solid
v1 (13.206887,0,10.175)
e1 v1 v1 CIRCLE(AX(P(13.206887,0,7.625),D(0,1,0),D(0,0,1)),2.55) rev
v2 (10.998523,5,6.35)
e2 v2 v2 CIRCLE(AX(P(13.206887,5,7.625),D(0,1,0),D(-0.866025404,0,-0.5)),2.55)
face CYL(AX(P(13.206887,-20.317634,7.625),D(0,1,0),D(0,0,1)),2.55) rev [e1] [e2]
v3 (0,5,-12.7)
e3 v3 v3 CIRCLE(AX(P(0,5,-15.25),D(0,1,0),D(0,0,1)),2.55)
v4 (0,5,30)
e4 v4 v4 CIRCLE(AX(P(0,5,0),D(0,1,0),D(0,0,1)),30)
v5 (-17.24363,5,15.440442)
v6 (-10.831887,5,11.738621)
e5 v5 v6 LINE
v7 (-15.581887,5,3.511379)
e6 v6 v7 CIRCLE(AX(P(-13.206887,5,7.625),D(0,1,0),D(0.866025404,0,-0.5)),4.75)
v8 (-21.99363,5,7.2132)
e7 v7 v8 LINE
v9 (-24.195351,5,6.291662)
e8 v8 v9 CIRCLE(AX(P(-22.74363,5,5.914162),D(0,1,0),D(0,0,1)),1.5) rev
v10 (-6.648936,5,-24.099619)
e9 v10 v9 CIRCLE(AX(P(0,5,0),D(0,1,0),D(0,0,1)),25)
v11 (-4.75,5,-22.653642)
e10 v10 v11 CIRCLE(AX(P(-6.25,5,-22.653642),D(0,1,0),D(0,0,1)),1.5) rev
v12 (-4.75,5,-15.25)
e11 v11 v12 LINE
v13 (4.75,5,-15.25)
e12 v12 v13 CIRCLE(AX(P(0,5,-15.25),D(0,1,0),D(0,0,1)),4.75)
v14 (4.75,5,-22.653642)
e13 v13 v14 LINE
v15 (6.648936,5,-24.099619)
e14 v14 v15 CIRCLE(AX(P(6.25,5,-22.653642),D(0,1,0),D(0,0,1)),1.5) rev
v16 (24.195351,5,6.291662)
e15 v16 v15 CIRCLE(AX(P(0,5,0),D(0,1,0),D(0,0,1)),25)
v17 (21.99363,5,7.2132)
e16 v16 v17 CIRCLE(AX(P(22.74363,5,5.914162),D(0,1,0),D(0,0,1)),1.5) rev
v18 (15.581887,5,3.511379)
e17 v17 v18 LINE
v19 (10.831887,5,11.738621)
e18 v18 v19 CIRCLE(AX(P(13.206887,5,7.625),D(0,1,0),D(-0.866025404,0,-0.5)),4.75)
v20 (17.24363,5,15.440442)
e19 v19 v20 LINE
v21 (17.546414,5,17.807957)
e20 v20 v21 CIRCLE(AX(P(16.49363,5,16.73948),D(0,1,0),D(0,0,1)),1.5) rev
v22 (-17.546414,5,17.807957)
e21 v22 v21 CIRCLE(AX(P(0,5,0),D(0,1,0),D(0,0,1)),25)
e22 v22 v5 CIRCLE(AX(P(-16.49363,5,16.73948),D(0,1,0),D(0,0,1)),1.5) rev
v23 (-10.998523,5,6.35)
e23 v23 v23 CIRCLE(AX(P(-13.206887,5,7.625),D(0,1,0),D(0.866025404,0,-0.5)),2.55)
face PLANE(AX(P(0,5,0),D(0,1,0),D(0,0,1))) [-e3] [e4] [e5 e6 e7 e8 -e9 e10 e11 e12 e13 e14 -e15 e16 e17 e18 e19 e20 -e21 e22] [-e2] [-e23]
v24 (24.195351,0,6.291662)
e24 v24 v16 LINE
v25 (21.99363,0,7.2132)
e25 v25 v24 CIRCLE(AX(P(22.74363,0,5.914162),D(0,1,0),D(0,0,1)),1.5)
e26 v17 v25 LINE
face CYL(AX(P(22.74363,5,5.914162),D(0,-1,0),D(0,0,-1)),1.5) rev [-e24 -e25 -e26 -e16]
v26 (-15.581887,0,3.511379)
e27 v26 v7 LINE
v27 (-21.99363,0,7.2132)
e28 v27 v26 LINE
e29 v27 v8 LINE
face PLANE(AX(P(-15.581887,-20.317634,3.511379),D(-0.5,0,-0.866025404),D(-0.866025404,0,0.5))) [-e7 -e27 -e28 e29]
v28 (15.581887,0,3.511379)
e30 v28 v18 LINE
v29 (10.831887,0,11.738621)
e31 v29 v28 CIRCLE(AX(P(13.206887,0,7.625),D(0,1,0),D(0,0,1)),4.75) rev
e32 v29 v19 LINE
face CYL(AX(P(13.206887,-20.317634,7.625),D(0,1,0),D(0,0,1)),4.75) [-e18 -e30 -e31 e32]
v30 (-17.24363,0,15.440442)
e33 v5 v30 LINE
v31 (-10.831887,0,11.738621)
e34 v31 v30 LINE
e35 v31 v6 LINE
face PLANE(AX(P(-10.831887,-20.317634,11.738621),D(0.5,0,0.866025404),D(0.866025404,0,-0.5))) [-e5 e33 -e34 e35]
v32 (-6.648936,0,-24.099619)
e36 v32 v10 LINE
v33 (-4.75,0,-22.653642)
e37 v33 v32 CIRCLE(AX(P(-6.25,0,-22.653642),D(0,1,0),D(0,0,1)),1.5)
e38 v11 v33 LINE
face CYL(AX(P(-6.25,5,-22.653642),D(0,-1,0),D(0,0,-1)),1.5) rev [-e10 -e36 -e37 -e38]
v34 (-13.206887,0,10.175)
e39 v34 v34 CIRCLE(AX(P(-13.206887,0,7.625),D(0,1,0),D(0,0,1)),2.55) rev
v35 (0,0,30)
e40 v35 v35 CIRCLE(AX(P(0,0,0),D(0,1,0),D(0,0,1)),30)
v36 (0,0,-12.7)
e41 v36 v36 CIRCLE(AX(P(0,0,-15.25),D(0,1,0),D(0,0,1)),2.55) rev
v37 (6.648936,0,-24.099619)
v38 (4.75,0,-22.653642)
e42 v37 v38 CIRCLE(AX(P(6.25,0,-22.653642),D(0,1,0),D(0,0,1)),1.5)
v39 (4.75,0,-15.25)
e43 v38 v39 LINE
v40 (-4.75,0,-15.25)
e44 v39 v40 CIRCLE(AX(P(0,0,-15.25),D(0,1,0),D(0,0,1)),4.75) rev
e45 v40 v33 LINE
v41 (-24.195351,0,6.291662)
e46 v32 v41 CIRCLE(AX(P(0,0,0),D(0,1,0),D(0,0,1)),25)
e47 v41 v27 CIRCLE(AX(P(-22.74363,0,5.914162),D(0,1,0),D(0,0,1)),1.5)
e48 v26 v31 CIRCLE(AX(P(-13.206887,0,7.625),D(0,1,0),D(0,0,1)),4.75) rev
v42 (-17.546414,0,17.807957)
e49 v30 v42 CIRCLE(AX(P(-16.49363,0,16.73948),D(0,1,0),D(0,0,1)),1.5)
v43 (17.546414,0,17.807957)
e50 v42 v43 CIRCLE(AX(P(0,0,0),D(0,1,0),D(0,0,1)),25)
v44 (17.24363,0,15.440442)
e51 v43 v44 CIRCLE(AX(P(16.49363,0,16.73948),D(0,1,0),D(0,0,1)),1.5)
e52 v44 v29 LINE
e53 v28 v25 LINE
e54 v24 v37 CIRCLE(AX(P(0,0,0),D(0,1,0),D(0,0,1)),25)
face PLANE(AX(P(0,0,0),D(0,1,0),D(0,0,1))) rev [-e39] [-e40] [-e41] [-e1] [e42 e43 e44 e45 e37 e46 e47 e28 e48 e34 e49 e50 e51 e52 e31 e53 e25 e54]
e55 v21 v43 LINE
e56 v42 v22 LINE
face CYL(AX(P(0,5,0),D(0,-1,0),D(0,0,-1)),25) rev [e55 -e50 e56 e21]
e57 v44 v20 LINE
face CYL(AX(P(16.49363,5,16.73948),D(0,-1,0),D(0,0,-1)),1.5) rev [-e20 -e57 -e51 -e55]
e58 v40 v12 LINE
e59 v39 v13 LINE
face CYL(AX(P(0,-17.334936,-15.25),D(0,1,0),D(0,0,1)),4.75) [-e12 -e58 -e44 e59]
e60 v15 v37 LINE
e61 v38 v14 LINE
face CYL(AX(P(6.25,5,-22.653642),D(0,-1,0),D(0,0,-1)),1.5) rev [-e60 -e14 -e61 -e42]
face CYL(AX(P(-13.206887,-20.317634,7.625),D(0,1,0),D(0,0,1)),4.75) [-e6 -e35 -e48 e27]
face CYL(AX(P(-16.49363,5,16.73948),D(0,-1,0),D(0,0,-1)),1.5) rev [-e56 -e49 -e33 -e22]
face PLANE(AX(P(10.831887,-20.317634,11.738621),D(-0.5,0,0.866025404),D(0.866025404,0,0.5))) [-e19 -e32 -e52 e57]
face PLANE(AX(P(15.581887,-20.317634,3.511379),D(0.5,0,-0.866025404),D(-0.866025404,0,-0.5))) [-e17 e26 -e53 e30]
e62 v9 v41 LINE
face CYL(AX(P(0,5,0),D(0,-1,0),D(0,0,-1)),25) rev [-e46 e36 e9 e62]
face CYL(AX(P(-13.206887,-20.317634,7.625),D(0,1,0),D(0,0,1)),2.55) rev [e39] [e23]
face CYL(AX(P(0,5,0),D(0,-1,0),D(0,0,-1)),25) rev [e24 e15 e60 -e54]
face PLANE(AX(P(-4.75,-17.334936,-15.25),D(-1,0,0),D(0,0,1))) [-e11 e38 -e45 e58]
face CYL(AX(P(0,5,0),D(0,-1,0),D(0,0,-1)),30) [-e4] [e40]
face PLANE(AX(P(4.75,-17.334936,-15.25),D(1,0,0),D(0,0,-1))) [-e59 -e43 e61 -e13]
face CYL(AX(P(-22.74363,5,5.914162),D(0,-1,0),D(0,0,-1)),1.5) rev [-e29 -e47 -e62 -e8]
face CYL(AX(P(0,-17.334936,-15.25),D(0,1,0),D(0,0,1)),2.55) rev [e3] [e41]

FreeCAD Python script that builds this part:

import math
import FreeCAD as App
import Part
import Sketcher

V = App.Vector
Q = App.Units.Quantity


def edges_at(feature, points):
    """Names of the edges that pass closest to the given points."""
    edges = feature.Shape.Edges
    near = lambda p: min(range(len(edges)), key=lambda i: edges[i].distToShape(Part.Vertex(*p))[0])
    return sorted({f"Edge{near(p) + 1}" for p in points})

doc = App.newDocument("Part")
body = doc.addObject("PartDesign::Body", "Body")

# Sketch on XZ plane
sketch1 = doc.addObject("Sketcher::SketchObject", "Sketch")
body.addObject(sketch1)
sketch1.AttachmentSupport = (doc.XZ_Plane, [""])
sketch1.MapMode = "FlatFace"
sketch1.addGeometry([
    Part.Circle(V(0, 0, 0), V(0, 0, 1), 30),
    Part.Circle(V(0, 0, 0), V(0, 0, 1), 25),
], False)
sketch1.addConstraint([
    Sketcher.Constraint("Coincident", 0, 3, -1, 1),
    Sketcher.Constraint("Coincident", 1, 3, -1, 1),
    Sketcher.Constraint("Diameter", 0, Q("60 mm")),
    Sketcher.Constraint("Diameter", 1, Q("50 mm")),
])
pad1 = doc.addObject("PartDesign::Pad", "Pad")
body.addObject(pad1)
pad1.Profile = sketch1
pad1.Length = 5
pad1.Reversed = True

# Sketch on XZ plane
sketch2 = doc.addObject("Sketcher::SketchObject", "Sketch001")
body.addObject(sketch2)
sketch2.AttachmentSupport = (doc.XZ_Plane, [""])
sketch2.MapMode = "FlatFace"
sketch2.addGeometry([
    Part.LineSegment(V(-4.8, -24.5, 0), V(-4.8, -15.2, 0)),  # 0
    Part.ArcOfCircle(Part.Circle(V(0, -15.2, 0), V(0, 0, 1), 4.8), math.radians(0), math.radians(180)),  # 1
    Part.LineSegment(V(4.8, -15.2, 0), V(4.8, -24.5, 0)),  # 2
    Part.ArcOfCircle(Part.Circle(V(0, 0, 0), V(0, 0, 1), 25), math.radians(-101), math.radians(-79)),  # 3
    Part.Circle(V(0, -15.2, 0), V(0, 0, 1), 2.5),  # 4
], False)
sketch2.addConstraint([
    Sketcher.Constraint("Tangent", 0, 2, 1, 2),
    Sketcher.Constraint("Tangent", 1, 1, 2, 1),
    Sketcher.Constraint("Coincident", 2, 2, 3, 2),
    Sketcher.Constraint("Coincident", 3, 1, 0, 1),
    Sketcher.Constraint("Vertical", 0),
    Sketcher.Constraint("Vertical", 2),
    Sketcher.Constraint("Coincident", 3, 3, -1, 1),
    Sketcher.Constraint("Coincident", 4, 3, 1, 3),
    Sketcher.Constraint("PointOnObject", 1, 3, -2),
    Sketcher.Constraint("Radius", 3, Q("25 mm")),
    Sketcher.Constraint("Diameter", 4, Q("5.1 mm")),
    Sketcher.Constraint("Radius", 1, Q("4.75 mm")),
    Sketcher.Constraint("DistanceY", 1, 3, -1, 1, Q("15.25 mm")),
])
pad2 = doc.addObject("PartDesign::Pad", "Pad001")
body.addObject(pad2)
pad2.Profile = sketch2
pad2.Length = 5
pad2.Reversed = True
doc.recompute()

polarpattern = doc.addObject("PartDesign::PolarPattern", "PolarPattern")
body.addObject(polarpattern)
polarpattern.Originals = [pad2]
polarpattern.Axis = (doc.Y_Axis, [""])
polarpattern.Angle = 360
polarpattern.Occurrences = 3
body.Tip = polarpattern
doc.recompute()

fillet = doc.addObject("PartDesign::Fillet", "Fillet")
body.addObject(fillet)
fillet.Base = (polarpattern, edges_at(polarpattern, [
    (4.75, 2.5, -24.545),
    (-4.75, 2.5, -24.545),
    (18.881, 2.5, 16.386),
    (23.631, 2.5, 8.159),
    (-23.631, 2.5, 8.159),
    (-18.881, 2.5, 16.386),
]))
fillet.Radius = 1.5

doc.recompute()
